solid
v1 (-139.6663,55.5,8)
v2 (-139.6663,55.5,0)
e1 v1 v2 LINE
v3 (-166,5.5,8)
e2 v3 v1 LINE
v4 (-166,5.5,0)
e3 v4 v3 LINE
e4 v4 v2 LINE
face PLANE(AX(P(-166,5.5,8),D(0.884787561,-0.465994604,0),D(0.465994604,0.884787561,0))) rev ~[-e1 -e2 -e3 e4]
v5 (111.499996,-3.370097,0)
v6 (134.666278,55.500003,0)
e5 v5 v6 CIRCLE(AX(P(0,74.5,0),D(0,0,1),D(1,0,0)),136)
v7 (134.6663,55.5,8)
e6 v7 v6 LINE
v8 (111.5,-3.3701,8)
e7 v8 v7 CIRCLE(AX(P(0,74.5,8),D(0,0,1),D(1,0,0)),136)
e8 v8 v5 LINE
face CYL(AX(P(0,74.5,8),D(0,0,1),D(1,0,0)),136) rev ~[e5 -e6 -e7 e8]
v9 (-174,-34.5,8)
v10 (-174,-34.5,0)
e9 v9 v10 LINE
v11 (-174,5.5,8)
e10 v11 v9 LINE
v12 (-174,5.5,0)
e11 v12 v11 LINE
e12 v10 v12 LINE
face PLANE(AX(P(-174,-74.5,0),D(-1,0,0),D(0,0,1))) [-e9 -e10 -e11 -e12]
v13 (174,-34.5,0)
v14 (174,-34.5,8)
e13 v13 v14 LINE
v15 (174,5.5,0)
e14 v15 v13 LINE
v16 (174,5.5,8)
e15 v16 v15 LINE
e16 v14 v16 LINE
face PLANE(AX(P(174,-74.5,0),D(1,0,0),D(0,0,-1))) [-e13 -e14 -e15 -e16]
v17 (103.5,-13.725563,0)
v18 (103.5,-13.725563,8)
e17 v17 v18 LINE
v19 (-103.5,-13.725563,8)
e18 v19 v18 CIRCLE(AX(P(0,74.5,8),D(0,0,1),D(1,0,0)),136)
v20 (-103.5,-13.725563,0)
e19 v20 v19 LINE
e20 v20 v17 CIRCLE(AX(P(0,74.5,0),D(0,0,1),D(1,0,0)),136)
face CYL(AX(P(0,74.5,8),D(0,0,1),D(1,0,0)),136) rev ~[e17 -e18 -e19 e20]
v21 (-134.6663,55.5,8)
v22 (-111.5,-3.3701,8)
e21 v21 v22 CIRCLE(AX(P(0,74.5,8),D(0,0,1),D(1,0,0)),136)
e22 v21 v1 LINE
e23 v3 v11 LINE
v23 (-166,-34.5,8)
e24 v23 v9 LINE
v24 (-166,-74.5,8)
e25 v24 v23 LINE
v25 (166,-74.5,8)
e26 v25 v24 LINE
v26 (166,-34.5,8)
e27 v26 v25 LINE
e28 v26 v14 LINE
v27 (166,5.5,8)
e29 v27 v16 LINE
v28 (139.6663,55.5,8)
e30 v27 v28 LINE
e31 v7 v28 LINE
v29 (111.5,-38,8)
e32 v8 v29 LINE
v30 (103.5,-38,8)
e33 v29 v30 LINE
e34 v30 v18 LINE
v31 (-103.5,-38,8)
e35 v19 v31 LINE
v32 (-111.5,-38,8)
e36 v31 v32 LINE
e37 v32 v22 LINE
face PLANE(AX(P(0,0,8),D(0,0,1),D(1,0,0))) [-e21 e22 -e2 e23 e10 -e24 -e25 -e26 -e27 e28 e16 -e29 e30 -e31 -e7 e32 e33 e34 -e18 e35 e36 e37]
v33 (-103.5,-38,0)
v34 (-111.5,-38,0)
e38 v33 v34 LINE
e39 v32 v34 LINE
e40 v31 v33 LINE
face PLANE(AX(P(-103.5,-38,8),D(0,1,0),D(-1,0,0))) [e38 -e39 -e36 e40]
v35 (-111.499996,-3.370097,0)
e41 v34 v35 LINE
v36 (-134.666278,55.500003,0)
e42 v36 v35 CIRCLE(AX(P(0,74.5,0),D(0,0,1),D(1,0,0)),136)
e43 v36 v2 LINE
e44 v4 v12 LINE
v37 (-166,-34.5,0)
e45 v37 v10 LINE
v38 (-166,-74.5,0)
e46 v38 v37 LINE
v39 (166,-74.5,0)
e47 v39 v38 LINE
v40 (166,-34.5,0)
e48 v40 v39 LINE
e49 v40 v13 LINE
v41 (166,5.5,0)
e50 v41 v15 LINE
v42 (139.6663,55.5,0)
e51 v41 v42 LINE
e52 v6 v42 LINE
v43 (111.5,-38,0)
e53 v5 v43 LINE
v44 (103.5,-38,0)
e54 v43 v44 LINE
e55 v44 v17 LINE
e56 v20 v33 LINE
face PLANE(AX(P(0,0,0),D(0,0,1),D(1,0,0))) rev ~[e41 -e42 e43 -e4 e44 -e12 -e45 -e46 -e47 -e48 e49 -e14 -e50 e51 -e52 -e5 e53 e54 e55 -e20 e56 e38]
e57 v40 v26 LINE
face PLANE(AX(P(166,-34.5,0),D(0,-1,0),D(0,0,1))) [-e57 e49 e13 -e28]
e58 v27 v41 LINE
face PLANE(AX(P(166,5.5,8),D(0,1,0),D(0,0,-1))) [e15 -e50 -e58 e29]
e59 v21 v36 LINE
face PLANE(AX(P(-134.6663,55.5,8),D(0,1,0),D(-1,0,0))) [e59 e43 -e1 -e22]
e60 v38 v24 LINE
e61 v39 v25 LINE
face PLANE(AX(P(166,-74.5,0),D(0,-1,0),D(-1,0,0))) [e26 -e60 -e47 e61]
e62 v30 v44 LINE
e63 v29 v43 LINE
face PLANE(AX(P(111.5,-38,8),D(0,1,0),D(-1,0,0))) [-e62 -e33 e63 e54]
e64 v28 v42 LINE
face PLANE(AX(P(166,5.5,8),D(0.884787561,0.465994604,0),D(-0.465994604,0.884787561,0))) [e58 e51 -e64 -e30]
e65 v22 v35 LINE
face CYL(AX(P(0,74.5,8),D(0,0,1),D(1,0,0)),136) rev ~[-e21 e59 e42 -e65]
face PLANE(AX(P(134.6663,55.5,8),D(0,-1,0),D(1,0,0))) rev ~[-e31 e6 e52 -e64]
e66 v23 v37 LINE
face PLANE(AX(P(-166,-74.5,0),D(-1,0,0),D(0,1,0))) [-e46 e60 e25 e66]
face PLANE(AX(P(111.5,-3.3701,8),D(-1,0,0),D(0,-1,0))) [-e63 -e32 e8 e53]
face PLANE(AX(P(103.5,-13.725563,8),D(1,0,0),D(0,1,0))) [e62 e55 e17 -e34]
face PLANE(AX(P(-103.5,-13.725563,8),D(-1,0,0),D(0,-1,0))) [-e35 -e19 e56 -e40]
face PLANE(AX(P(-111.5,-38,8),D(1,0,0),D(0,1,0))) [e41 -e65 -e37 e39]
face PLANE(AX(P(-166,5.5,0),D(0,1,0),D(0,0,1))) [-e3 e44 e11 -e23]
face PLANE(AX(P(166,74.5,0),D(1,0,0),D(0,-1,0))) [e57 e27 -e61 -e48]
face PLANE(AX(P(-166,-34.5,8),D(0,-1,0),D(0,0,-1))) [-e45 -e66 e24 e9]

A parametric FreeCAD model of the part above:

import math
import FreeCAD as App
import Part
import Sketcher

V = App.Vector
Q = App.Units.Quantity

doc = App.newDocument("Part")
params = doc.addObject("Spreadsheet::Sheet", "Params")
for row, (alias, value) in enumerate([
    ("sketch1_width", "332 mm"),
    ("sketch1_height", "149 mm"),
    ("pad1_length", "8 mm"),
    ("sketch2_radius", "136 mm"),
    ("sketch3_width", "8 mm"),
    ("sketch3_height", "34.63 mm"),
    ("sketch4_width", "40 mm"),
    ("sketch4_height", "8 mm"),
    ("pad2_length", "8 mm"),
    ("sketch5_width", "40 mm"),
    ("sketch5_height", "8 mm"),
    ("pad3_length", "8 mm"),
    ("sketch6_radius", "136 mm"),
    ("sketch6_width", "30 mm"),
    ("sketch6_height", "19 mm"),
    ("sketch7_height", "50 mm"),
], start=1):
    params.set(f"A{row}", alias)
    params.set(f"B{row}", "=" + value)
    params.setAlias(f"B{row}", alias)

body = doc.addObject("PartDesign::Body", "Body")

# Sketch on XY plane
sketch1 = body.newObject("Sketcher::SketchObject", "Sketch")
sketch1.AttachmentSupport = (doc.getObject("XY_Plane"), [""])
sketch1.MapMode = "FlatFace"
sketch1.addGeometry(Part.LineSegment(V(166, 74, 0), V(-166, 74, 0)), False)
sketch1.addGeometry(Part.LineSegment(V(-166, 74, 0), V(-166, -74, 0)), False)
sketch1.addGeometry(Part.LineSegment(V(-166, -74, 0), V(166, -74, 0)), False)
sketch1.addGeometry(Part.LineSegment(V(166, -74, 0), V(166, 74, 0)), False)
sketch1.addConstraint(Sketcher.Constraint("Coincident", 0, 2, 1, 1))
sketch1.addConstraint(Sketcher.Constraint("Coincident", 1, 2, 2, 1))
sketch1.addConstraint(Sketcher.Constraint("Coincident", 2, 2, 3, 1))
sketch1.addConstraint(Sketcher.Constraint("Coincident", 3, 2, 0, 1))
sketch1.addConstraint(Sketcher.Constraint("Horizontal", 0))
sketch1.addConstraint(Sketcher.Constraint("Vertical", 1))
sketch1.addConstraint(Sketcher.Constraint("Horizontal", 2))
sketch1.addConstraint(Sketcher.Constraint("Vertical", 3))
sketch1.addConstraint(Sketcher.Constraint("Symmetric", 0, 2, 2, 2, -1, 1))
sketch1.addConstraint(Sketcher.Constraint("DistanceX", 0, 2, 0, 1, Q("332 mm")))
sketch1.addConstraint(Sketcher.Constraint("DistanceY", 1, 2, 1, 1, Q("149 mm")))
sketch1.setExpression("Constraints[9]", "Params.sketch1_width")
sketch1.setExpression("Constraints[10]", "Params.sketch1_height")
pad1 = body.newObject("PartDesign::Pad", "Pad")
pad1.Profile = sketch1
pad1.setExpression("Length", "Params.pad1_length")

# Sketch on XY plane
sketch2 = body.newObject("Sketcher::SketchObject", "Sketch001")
sketch2.AttachmentSupport = (doc.getObject("XY_Plane"), [""])
sketch2.MapMode = "FlatFace"
sketch2.AttachmentOffset = App.Placement(V(0, 0, 8), App.Rotation())
sketch2.addGeometry(Part.ArcOfCircle(Part.Circle(V(0, 74, 0), V(0, 0, 1), 136), math.radians(180), math.radians(360)), False)
sketch2.addGeometry(Part.LineSegment(V(136, 74, 0), V(-136, 74, 0)), False)
sketch2.addConstraint(Sketcher.Constraint("Coincident", 0, 1, 1, 2))
sketch2.addConstraint(Sketcher.Constraint("Coincident", 1, 1, 0, 2))
sketch2.addConstraint(Sketcher.Constraint("Horizontal", 1))
sketch2.addConstraint(Sketcher.Constraint("PointOnObject", 0, 3, -2))
sketch2.addConstraint(Sketcher.Constraint("Radius", 0, Q("136 mm")))
sketch2.addConstraint(Sketcher.Constraint("DistanceY", -1, 1, 0, 3, Q("74.5 mm")))
sketch2.addConstraint(Sketcher.Constraint("DistanceY", -1, 1, 0, 1, Q("74.5 mm")))
sketch2.setExpression("Constraints[4]", "Params.sketch2_radius")
pocket1 = body.newObject("PartDesign::Pocket", "Pocket")
pocket1.Profile = sketch2
pocket1.Type = "ThroughAll"

# Sketch on XY plane
sketch3 = body.newObject("Sketcher::SketchObject", "Sketch002")
sketch3.AttachmentSupport = (doc.getObject("XY_Plane"), [""])
sketch3.MapMode = "FlatFace"
sketch3.AttachmentOffset = App.Placement(V(0, 0, 8), App.Rotation())
sketch3.addGeometry(Part.LineSegment(V(-104, -38, 0), V(-104, -3, 0)), False)
sketch3.addGeometry(Part.LineSegment(V(-104, -3, 0), V(-112, -3, 0)), False)
sketch3.addGeometry(Part.LineSegment(V(-112, -3, 0), V(-112, -38, 0)), False)
sketch3.addGeometry(Part.LineSegment(V(-112, -38, 0), V(-104, -38, 0)), False)
sketch3.addGeometry(Part.LineSegment(V(112, -3, 0), V(104, -3, 0)), False)
sketch3.addGeometry(Part.LineSegment(V(104, -3, 0), V(104, -38, 0)), False)
sketch3.addGeometry(Part.LineSegment(V(104, -38, 0), V(112, -38, 0)), False)
sketch3.addGeometry(Part.LineSegment(V(112, -38, 0), V(112, -3, 0)), False)
sketch3.addConstraint(Sketcher.Constraint("Coincident", 0, 2, 1, 1))
sketch3.addConstraint(Sketcher.Constraint("Coincident", 1, 2, 2, 1))
sketch3.addConstraint(Sketcher.Constraint("Coincident", 2, 2, 3, 1))
sketch3.addConstraint(Sketcher.Constraint("Coincident", 3, 2, 0, 1))
sketch3.addConstraint(Sketcher.Constraint("Coincident", 4, 2, 5, 1))
sketch3.addConstraint(Sketcher.Constraint("Coincident", 5, 2, 6, 1))
sketch3.addConstraint(Sketcher.Constraint("Coincident", 6, 2, 7, 1))
sketch3.addConstraint(Sketcher.Constraint("Coincident", 7, 2, 4, 1))
sketch3.addConstraint(Sketcher.Constraint("Vertical", 0))
sketch3.addConstraint(Sketcher.Constraint("Horizontal", 1))
sketch3.addConstraint(Sketcher.Constraint("Vertical", 2))
sketch3.addConstraint(Sketcher.Constraint("Horizontal", 3))
sketch3.addConstraint(Sketcher.Constraint("Horizontal", 4))
sketch3.addConstraint(Sketcher.Constraint("Vertical", 5))
sketch3.addConstraint(Sketcher.Constraint("Horizontal", 6))
sketch3.addConstraint(Sketcher.Constraint("Vertical", 7))
sketch3.addConstraint(Sketcher.Constraint("Symmetric", 0, 2, 4, 2, -2))
sketch3.addConstraint(Sketcher.Constraint("Symmetric", 2, 2, 6, 2, -2))
sketch3.addConstraint(Sketcher.Constraint("DistanceX", 1, 2, 1, 1, Q("8 mm")))
sketch3.addConstraint(Sketcher.Constraint("DistanceY", 2, 2, -1, 1, Q("38 mm")))
sketch3.addConstraint(Sketcher.Constraint("DistanceX", 0, 2, 4, 2, Q("207 mm")))
sketch3.addConstraint(Sketcher.Constraint("DistanceY", 0, 1, 0, 2, Q("34.63 mm")))
sketch3.setExpression("Constraints[18]", "Params.sketch3_width")
sketch3.setExpression("Constraints[21]", "Params.sketch3_height")
pocket2 = body.newObject("PartDesign::Pocket", "Pocket001")
pocket2.Profile = sketch3
pocket2.Type = "ThroughAll"

# Sketch on YZ plane
sketch4 = body.newObject("Sketcher::SketchObject", "Sketch003")
sketch4.AttachmentSupport = (doc.getObject("YZ_Plane"), [""])
sketch4.MapMode = "FlatFace"
sketch4.AttachmentOffset = App.Placement(V(0, 0, -166), App.Rotation())
sketch4.addGeometry(Part.LineSegment(V(6, 8, 0), V(6, 0, 0)), False)
sketch4.addGeometry(Part.LineSegment(V(6, 0, 0), V(-34, 0, 0)), False)
sketch4.addGeometry(Part.LineSegment(V(-34, 0, 0), V(-34, 8, 0)), False)
sketch4.addGeometry(Part.LineSegment(V(-34, 8, 0), V(6, 8, 0)), False)
sketch4.addConstraint(Sketcher.Constraint("Coincident", 0, 2, 1, 1))
sketch4.addConstraint(Sketcher.Constraint("Coincident", 1, 2, 2, 1))
sketch4.addConstraint(Sketcher.Constraint("Coincident", 2, 2, 3, 1))
sketch4.addConstraint(Sketcher.Constraint("Coincident", 3, 2, 0, 1))
sketch4.addConstraint(Sketcher.Constraint("Vertical", 0))
sketch4.addConstraint(Sketcher.Constraint("Horizontal", 1))
sketch4.addConstraint(Sketcher.Constraint("Vertical", 2))
sketch4.addConstraint(Sketcher.Constraint("Horizontal", 3))
sketch4.addConstraint(Sketcher.Constraint("PointOnObject", 0, 2, -1))
sketch4.addConstraint(Sketcher.Constraint("DistanceX", 1, 2, 1, 1, Q("40 mm")))
sketch4.addConstraint(Sketcher.Constraint("DistanceY", 0, 2, 0, 1, Q("8 mm")))
sketch4.addConstraint(Sketcher.Constraint("DistanceX", -1, 1, 0, 2, Q("5.5 mm")))
sketch4.setExpression("Constraints[9]", "Params.sketch4_width")
sketch4.setExpression("Constraints[10]", "Params.sketch4_height")
pad2 = body.newObject("PartDesign::Pad", "Pad001")
pad2.Profile = sketch4
pad2.setExpression("Length", "Params.pad2_length")
pad2.Reversed = True

# Sketch on YZ plane
sketch5 = body.newObject("Sketcher::SketchObject", "Sketch004")
sketch5.AttachmentSupport = (doc.getObject("YZ_Plane"), [""])
sketch5.MapMode = "FlatFace"
sketch5.AttachmentOffset = App.Placement(V(0, 0, 166), App.Rotation())
sketch5.addGeometry(Part.LineSegment(V(6, 0, 0), V(6, 8, 0)), False)
sketch5.addGeometry(Part.LineSegment(V(6, 8, 0), V(-34, 8, 0)), False)
sketch5.addGeometry(Part.LineSegment(V(-34, 8, 0), V(-34, 0, 0)), False)
sketch5.addGeometry(Part.LineSegment(V(-34, 0, 0), V(6, 0, 0)), False)
sketch5.addConstraint(Sketcher.Constraint("Coincident", 0, 2, 1, 1))
sketch5.addConstraint(Sketcher.Constraint("Coincident", 1, 2, 2, 1))
sketch5.addConstraint(Sketcher.Constraint("Coincident", 2, 2, 3, 1))
sketch5.addConstraint(Sketcher.Constraint("Coincident", 3, 2, 0, 1))
sketch5.addConstraint(Sketcher.Constraint("Vertical", 0))
sketch5.addConstraint(Sketcher.Constraint("Horizontal", 1))
sketch5.addConstraint(Sketcher.Constraint("Vertical", 2))
sketch5.addConstraint(Sketcher.Constraint("Horizontal", 3))
sketch5.addConstraint(Sketcher.Constraint("PointOnObject", 2, 2, -1))
sketch5.addConstraint(Sketcher.Constraint("DistanceX", 1, 2, 1, 1, Q("40 mm")))
sketch5.addConstraint(Sketcher.Constraint("DistanceY", 0, 1, 0, 2, Q("8 mm")))
sketch5.addConstraint(Sketcher.Constraint("DistanceX", -1, 1, 0, 2, Q("5.5 mm")))
sketch5.setExpression("Constraints[9]", "Params.sketch5_width")
sketch5.setExpression("Constraints[10]", "Params.sketch5_height")
pad3 = body.newObject("PartDesign::Pad", "Pad002")
pad3.Profile = sketch5
pad3.setExpression("Length", "Params.pad3_length")

# Sketch on XY plane
sketch6 = body.newObject("Sketcher::SketchObject", "Sketch005")
sketch6.AttachmentSupport = (doc.getObject("XY_Plane"), [""])
sketch6.MapMode = "FlatFace"
sketch6.AttachmentOffset = App.Placement(V(0, 0, 8), App.Rotation())
sketch6.addGeometry(Part.ArcOfCircle(Part.Circle(V(0, 74, 0), V(0, 0, 1), 136), math.radians(180), math.radians(188.03)), False)
sketch6.addGeometry(Part.LineSegment(V(-136, 74, 0), V(-166, 74, 0)), False)
sketch6.addGeometry(Part.LineSegment(V(-166, 74, 0), V(-166, 56, 0)), False)
sketch6.addGeometry(Part.LineSegment(V(-166, 56, 0), V(-135, 56, 0)), False)
sketch6.addGeometry(Part.LineSegment(V(166, 56, 0), V(166, 74, 0)), False)
sketch6.addGeometry(Part.LineSegment(V(166, 74, 0), V(136, 74, 0)), False)
sketch6.addGeometry(Part.ArcOfCircle(Part.Circle(V(0, 74, 0), V(0, 0, 1), 136), math.radians(-8.03), math.radians(0)), False)
sketch6.addGeometry(Part.LineSegment(V(135, 56, 0), V(166, 56, 0)), False)
sketch6.addConstraint(Sketcher.Constraint("Coincident", 0, 1, 1, 1))
sketch6.addConstraint(Sketcher.Constraint("Coincident", 1, 2, 2, 1))
sketch6.addConstraint(Sketcher.Constraint("Coincident", 2, 2, 3, 1))
sketch6.addConstraint(Sketcher.Constraint("Coincident", 3, 2, 0, 2))
sketch6.addConstraint(Sketcher.Constraint("Coincident", 4, 2, 5, 1))
sketch6.addConstraint(Sketcher.Constraint("Coincident", 5, 2, 6, 2))
sketch6.addConstraint(Sketcher.Constraint("Coincident", 6, 1, 7, 1))
sketch6.addConstraint(Sketcher.Constraint("Coincident", 7, 2, 4, 1))
sketch6.addConstraint(Sketcher.Constraint("Horizontal", 1))
sketch6.addConstraint(Sketcher.Constraint("Vertical", 2))
sketch6.addConstraint(Sketcher.Constraint("Horizontal", 3))
sketch6.addConstraint(Sketcher.Constraint("Vertical", 4))
sketch6.addConstraint(Sketcher.Constraint("Horizontal", 5))
sketch6.addConstraint(Sketcher.Constraint("Horizontal", 7))
sketch6.addConstraint(Sketcher.Constraint("Coincident", 6, 3, 0, 3))
sketch6.addConstraint(Sketcher.Constraint("Equal", 0, 6))
sketch6.addConstraint(Sketcher.Constraint("Symmetric", 1, 2, 4, 2, -2))
sketch6.addConstraint(Sketcher.Constraint("Symmetric", 3, 2, 6, 1, -2))
sketch6.addConstraint(Sketcher.Constraint("Horizontal", 6, 3, 0, 1))
sketch6.addConstraint(Sketcher.Constraint("Radius", 0, Q("136 mm")))
sketch6.addConstraint(Sketcher.Constraint("DistanceX", 1, 2, 1, 1, Q("30 mm")))
sketch6.addConstraint(Sketcher.Constraint("DistanceY", 2, 2, 2, 1, Q("19 mm")))
sketch6.addConstraint(Sketcher.Constraint("DistanceY", -1, 1, 0, 3, Q("74.5 mm")))
sketch6.setExpression("Constraints[19]", "Params.sketch6_radius")
sketch6.setExpression("Constraints[20]", "Params.sketch6_width")
sketch6.setExpression("Constraints[21]", "Params.sketch6_height")
pocket3 = body.newObject("PartDesign::Pocket", "Pocket002")
pocket3.Profile = sketch6
pocket3.Type = "ThroughAll"

# Sketch on XY plane
sketch7 = body.newObject("Sketcher::SketchObject", "Sketch006")
sketch7.AttachmentSupport = (doc.getObject("XY_Plane"), [""])
sketch7.MapMode = "FlatFace"
sketch7.AttachmentOffset = App.Placement(V(0, 0, 8), App.Rotation())
sketch7.addGeometry(Part.LineSegment(V(-140, 56, 0), V(-166, 56, 0)), False)
sketch7.addGeometry(Part.LineSegment(V(-166, 56, 0), V(-166, 6, 0)), False)
sketch7.addGeometry(Part.LineSegment(V(-166, 6, 0), V(-140, 56, 0)), False)
sketch7.addGeometry(Part.LineSegment(V(140, 56, 0), V(166, 6, 0)), False)
sketch7.addGeometry(Part.LineSegment(V(166, 6, 0), V(166, 56, 0)), False)
sketch7.addGeometry(Part.LineSegment(V(166, 56, 0), V(140, 56, 0)), False)
sketch7.addConstraint(Sketcher.Constraint("Coincident", 0, 2, 1, 1))
sketch7.addConstraint(Sketcher.Constraint("Coincident", 1, 2, 2, 1))
sketch7.addConstraint(Sketcher.Constraint("Coincident", 2, 2, 0, 1))
sketch7.addConstraint(Sketcher.Constraint("Coincident", 3, 2, 4, 1))
sketch7.addConstraint(Sketcher.Constraint("Coincident", 4, 2, 5, 1))
sketch7.addConstraint(Sketcher.Constraint("Coincident", 5, 2, 3, 1))
sketch7.addConstraint(Sketcher.Constraint("Horizontal", 0))
sketch7.addConstraint(Sketcher.Constraint("Vertical", 1))
sketch7.addConstraint(Sketcher.Constraint("Vertical", 4))
sketch7.addConstraint(Sketcher.Constraint("Horizontal", 5))
sketch7.addConstraint(Sketcher.Constraint("Symmetric", 1, 2, 3, 2, -2))
sketch7.addConstraint(Sketcher.Constraint("Symmetric", 2, 2, 5, 2, -2))
sketch7.addConstraint(Sketcher.Constraint("DistanceY", 1, 2, 1, 1, Q("50 mm")))
sketch7.addConstraint(Sketcher.Constraint("DistanceX", 0, 2, -1, 1, Q("166 mm")))
sketch7.addConstraint(Sketcher.Constraint("DistanceY", -1, 1, 0, 2, Q("55.5 mm")))
sketch7.addConstraint(Sketcher.Constraint("DistanceX", 0, 2, 0, 1, Q("26.3337 mm")))
sketch7.setExpression("Constraints[12]", "Params.sketch7_height")
pocket4 = body.newObject("PartDesign::Pocket", "Pocket003")
pocket4.Profile = sketch7
pocket4.Type = "ThroughAll"

doc.recompute()
